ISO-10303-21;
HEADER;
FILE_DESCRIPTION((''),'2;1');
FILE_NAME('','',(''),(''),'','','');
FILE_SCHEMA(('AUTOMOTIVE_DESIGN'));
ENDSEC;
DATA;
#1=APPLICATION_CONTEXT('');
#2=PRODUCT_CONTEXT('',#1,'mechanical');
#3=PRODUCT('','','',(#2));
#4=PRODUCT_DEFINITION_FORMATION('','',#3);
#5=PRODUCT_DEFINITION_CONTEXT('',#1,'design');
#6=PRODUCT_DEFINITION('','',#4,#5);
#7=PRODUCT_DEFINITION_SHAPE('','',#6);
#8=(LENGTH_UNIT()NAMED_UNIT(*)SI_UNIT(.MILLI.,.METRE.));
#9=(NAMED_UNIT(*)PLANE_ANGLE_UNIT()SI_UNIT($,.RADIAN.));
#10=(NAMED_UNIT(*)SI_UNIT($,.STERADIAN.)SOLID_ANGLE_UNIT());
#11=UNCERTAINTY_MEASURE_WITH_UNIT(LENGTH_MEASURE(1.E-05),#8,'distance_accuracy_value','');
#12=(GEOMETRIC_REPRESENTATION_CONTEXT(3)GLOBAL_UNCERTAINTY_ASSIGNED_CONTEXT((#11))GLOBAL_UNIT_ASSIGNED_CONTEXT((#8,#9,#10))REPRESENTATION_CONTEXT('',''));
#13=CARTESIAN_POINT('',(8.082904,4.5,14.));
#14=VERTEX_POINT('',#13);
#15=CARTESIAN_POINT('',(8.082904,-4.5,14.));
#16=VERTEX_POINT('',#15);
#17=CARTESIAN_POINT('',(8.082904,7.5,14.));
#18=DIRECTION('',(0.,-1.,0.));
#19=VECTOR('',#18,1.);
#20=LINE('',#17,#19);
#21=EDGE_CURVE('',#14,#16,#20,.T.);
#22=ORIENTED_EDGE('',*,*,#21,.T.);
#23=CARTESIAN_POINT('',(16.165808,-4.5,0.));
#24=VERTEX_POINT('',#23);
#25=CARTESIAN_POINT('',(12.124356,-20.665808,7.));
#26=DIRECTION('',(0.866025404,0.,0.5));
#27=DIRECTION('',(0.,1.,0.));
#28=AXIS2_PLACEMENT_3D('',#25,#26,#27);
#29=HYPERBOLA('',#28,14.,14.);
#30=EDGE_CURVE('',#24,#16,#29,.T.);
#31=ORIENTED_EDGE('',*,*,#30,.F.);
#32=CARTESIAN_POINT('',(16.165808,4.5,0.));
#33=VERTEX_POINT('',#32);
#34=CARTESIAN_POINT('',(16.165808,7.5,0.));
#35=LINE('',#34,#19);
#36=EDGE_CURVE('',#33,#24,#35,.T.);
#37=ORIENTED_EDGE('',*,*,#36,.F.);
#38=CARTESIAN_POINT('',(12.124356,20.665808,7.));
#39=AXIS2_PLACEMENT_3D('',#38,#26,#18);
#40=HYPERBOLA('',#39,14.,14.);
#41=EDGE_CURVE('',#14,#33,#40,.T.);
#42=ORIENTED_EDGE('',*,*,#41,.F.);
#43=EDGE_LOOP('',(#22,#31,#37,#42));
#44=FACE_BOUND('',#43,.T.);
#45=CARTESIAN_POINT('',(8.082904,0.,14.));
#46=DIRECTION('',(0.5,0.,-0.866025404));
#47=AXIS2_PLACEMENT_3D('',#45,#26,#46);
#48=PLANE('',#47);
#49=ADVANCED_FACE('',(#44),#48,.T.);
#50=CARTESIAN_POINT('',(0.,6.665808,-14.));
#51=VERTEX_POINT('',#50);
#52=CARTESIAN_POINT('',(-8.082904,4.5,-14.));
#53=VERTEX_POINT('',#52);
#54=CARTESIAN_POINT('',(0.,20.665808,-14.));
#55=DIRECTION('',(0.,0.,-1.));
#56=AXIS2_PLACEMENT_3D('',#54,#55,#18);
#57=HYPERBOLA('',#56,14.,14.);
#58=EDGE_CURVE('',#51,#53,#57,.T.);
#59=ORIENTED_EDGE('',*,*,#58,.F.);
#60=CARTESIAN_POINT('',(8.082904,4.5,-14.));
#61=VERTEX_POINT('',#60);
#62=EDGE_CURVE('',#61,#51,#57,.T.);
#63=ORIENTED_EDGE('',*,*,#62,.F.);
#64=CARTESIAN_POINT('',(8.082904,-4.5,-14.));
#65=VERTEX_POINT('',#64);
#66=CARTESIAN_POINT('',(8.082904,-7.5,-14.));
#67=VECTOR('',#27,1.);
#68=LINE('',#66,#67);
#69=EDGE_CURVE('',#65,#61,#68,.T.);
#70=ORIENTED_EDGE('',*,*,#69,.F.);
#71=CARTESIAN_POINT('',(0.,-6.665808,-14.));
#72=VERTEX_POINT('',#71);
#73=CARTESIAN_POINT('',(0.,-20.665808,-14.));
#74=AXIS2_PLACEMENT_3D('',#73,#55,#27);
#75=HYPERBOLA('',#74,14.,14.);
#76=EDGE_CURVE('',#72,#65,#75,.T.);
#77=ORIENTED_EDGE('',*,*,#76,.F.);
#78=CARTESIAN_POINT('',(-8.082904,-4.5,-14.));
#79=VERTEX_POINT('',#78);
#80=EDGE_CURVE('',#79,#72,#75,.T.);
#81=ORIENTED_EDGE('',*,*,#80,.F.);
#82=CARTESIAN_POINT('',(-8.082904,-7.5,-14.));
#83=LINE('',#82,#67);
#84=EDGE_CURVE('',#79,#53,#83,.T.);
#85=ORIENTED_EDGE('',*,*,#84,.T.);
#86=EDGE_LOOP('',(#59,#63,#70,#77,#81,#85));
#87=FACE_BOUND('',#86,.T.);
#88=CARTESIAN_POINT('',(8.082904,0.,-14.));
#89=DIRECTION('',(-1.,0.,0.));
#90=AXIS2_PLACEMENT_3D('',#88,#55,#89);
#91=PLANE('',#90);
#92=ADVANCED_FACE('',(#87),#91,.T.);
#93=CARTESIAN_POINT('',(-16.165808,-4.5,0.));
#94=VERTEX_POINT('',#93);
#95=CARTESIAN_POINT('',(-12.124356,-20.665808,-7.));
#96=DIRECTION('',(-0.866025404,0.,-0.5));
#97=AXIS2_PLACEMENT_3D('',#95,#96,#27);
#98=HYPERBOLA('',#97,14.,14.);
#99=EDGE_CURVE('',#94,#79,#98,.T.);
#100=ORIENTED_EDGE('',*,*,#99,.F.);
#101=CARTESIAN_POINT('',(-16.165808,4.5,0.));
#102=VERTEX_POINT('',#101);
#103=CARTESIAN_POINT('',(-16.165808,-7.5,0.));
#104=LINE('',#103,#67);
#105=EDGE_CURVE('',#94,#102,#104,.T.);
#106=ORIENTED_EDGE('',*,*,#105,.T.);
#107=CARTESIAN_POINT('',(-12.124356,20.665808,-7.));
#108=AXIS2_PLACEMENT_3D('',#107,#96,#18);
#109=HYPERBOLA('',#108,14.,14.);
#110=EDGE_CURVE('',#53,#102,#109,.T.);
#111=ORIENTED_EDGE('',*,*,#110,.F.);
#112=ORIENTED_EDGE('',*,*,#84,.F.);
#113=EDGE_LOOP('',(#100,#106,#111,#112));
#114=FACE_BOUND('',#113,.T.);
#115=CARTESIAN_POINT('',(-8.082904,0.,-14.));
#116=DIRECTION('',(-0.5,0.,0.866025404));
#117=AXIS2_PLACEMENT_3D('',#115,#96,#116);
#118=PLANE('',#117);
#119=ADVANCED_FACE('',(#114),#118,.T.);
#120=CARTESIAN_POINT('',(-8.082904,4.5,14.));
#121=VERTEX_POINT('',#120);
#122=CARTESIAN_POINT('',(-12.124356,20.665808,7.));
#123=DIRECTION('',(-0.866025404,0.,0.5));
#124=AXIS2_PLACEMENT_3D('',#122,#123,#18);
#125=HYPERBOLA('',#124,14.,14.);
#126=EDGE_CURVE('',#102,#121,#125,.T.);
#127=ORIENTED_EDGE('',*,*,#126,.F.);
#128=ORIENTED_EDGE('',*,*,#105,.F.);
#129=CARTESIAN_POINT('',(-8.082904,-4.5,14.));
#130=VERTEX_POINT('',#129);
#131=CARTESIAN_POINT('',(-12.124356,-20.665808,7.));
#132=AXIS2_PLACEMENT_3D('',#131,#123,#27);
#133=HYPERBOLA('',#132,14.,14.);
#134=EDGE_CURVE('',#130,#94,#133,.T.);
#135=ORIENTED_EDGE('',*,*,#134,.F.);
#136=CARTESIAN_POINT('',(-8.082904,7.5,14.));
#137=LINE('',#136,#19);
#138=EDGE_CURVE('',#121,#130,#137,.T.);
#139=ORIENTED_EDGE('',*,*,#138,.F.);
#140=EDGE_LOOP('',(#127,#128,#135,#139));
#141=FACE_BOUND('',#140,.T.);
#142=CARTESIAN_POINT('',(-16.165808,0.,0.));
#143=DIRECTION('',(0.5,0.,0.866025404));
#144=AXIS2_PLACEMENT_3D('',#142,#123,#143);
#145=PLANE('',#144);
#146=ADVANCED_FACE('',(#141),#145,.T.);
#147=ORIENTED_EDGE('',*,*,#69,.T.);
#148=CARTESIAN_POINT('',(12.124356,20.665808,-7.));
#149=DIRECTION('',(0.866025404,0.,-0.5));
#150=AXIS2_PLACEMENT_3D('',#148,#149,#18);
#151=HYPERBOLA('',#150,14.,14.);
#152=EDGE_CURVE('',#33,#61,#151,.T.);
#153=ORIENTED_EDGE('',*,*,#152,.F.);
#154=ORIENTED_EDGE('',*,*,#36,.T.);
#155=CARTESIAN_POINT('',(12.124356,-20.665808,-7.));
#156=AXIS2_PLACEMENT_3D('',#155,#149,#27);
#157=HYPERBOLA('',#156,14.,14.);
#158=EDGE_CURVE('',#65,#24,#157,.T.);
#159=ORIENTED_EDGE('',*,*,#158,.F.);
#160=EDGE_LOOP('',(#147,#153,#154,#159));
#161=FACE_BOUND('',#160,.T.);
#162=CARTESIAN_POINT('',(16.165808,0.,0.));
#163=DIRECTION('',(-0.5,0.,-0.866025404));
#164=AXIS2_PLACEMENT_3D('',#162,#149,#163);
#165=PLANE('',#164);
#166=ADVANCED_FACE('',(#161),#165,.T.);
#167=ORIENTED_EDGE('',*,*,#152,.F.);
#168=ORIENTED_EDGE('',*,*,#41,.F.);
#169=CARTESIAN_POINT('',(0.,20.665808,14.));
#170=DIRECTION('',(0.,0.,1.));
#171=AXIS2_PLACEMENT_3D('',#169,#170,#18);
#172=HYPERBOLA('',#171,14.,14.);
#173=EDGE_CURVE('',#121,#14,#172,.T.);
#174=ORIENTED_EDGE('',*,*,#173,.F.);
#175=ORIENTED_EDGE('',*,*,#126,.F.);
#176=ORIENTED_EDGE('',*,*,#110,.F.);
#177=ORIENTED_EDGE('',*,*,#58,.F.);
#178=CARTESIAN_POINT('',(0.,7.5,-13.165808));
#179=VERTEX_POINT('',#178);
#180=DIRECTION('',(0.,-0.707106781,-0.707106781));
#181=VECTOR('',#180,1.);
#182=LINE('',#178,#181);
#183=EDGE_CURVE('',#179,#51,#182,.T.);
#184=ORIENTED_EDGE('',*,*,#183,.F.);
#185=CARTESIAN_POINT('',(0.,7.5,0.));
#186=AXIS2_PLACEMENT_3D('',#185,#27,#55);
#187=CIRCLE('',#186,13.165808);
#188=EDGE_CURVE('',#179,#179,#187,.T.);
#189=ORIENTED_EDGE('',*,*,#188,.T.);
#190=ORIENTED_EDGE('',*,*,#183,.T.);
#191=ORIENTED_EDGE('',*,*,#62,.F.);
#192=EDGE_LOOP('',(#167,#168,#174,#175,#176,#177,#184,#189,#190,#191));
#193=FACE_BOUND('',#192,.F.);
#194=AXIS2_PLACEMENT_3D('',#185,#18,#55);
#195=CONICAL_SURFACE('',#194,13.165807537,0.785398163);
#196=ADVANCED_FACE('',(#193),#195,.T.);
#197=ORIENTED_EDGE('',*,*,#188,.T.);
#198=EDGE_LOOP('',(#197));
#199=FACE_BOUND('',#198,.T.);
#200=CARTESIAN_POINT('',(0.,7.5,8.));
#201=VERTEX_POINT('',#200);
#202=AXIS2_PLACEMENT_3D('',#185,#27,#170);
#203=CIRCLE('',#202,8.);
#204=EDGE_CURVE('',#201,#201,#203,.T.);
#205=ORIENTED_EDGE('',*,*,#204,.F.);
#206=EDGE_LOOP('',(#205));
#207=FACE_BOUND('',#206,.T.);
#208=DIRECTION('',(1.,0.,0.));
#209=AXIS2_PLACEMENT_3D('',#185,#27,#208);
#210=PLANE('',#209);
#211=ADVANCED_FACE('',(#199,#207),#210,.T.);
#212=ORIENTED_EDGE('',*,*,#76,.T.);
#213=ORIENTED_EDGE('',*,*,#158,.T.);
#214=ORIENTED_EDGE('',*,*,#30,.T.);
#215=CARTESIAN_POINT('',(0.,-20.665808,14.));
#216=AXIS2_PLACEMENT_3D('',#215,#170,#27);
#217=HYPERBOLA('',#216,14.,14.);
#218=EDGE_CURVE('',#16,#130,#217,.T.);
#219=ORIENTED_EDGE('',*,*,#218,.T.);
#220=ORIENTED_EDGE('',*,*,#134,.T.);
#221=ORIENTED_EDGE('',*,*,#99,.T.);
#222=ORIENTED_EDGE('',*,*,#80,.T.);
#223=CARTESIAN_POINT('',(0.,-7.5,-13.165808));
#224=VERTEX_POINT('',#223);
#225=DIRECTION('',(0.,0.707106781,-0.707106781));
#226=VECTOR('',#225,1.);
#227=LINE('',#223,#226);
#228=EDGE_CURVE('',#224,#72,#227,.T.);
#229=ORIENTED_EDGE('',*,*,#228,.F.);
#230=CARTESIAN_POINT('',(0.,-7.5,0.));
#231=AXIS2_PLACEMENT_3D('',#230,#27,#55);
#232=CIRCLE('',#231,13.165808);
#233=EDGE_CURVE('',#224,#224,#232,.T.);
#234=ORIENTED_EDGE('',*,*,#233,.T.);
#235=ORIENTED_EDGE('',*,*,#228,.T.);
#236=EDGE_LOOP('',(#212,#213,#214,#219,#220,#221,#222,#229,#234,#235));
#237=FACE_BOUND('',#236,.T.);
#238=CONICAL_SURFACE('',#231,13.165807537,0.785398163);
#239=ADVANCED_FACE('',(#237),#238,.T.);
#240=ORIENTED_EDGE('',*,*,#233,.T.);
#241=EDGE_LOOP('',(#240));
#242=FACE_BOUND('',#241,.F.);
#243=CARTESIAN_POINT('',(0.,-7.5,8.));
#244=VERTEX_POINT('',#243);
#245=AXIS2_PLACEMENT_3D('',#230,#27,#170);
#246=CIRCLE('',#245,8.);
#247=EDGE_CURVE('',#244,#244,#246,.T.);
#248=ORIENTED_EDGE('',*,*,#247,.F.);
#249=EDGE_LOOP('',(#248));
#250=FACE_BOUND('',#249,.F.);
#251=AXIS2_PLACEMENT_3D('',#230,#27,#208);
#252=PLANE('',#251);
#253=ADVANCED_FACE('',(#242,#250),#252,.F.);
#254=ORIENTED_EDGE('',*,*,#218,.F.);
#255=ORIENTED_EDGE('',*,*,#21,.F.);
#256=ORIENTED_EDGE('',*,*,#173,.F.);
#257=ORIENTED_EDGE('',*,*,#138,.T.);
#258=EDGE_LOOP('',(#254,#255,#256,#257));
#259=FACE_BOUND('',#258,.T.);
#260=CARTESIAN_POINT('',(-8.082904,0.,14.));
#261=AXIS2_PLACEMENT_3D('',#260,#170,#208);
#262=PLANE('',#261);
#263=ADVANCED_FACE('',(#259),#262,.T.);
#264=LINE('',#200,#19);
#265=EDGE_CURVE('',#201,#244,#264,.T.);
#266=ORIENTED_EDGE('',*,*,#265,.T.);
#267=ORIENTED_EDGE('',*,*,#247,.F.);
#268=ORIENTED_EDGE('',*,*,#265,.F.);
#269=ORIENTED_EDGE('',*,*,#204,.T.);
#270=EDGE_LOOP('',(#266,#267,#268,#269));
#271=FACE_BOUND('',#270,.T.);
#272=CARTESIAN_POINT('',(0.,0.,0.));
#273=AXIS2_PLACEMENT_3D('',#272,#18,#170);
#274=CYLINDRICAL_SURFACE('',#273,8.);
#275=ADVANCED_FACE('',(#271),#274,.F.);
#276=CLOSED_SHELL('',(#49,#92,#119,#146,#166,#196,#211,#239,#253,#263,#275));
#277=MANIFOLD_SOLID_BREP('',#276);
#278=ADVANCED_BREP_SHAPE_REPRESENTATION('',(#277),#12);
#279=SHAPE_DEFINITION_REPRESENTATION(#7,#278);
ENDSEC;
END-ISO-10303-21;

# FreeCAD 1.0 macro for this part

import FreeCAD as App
import Part
import Sketcher
Q = App.Units.Quantity

doc = App.newDocument("Part")
body = doc.addObject("PartDesign::Body", "Body")

sketch1 = body.newObject("Sketcher::SketchObject", "Sketch")
sketch1.AttachmentSupport = (doc.getObject("XZ_Plane"), [""])
sketch1.MapMode = "FlatFace"
sketch1.addGeometry([
    Part.LineSegment(App.Vector(16, 0, 0), App.Vector(8, -14, 0)),
    Part.LineSegment(App.Vector(8, -14, 0), App.Vector(-8, -14, 0)),
    Part.LineSegment(App.Vector(-8, -14, 0), App.Vector(-16, 0, 0)),
    Part.LineSegment(App.Vector(-16, 0, 0), App.Vector(-8, 14, 0)),
    Part.LineSegment(App.Vector(-8, 14, 0), App.Vector(8, 14, 0)),
    Part.LineSegment(App.Vector(8, 14, 0), App.Vector(16, 0, 0)),
    Part.Circle(App.Vector(0, 0, 0), App.Vector(0, 0, 1), 8),
], False)
sketch1.addConstraint([
    Sketcher.Constraint("Coincident", 0, 2, 1, 1),
    Sketcher.Constraint("Coincident", 1, 2, 2, 1),
    Sketcher.Constraint("Coincident", 2, 2, 3, 1),
    Sketcher.Constraint("Coincident", 3, 2, 4, 1),
    Sketcher.Constraint("Coincident", 4, 2, 5, 1),
    Sketcher.Constraint("Coincident", 5, 2, 0, 1),
    Sketcher.Constraint("Horizontal", 1),
    Sketcher.Constraint("Horizontal", 4),
    Sketcher.Constraint("Coincident", 6, 3, -1, 1),
    Sketcher.Constraint("Symmetric", 0, 2, 3, 2, -1, 1),
    Sketcher.Constraint("Symmetric", 2, 2, 5, 2, -1, 1),
    Sketcher.Constraint("PointOnObject", 2, 2, -1),
    Sketcher.Constraint("Parallel", 2, 5),
    Sketcher.Constraint("Vertical", 1, 2, 3, 2),
    Sketcher.Constraint("Diameter", 6, Q("16 mm")),
    Sketcher.Constraint("Angle", 0, Q("-120 deg")),
    Sketcher.Constraint("DistanceY", 0, 2, -1, 1, Q("14 mm")),
    Sketcher.Constraint("DistanceX", 1, 2, 1, 1, Q("16.165808 mm")),
])
pad1 = body.newObject("PartDesign::Pad", "Pad")
pad1.Profile = sketch1
pad1.Length = 15
pad1.Midplane = True

sketch2 = body.newObject("Sketcher::SketchObject", "Sketch001")
sketch2.AttachmentSupport = (doc.getObject("XY_Plane"), [""])
sketch2.MapMode = "FlatFace"
sketch2.addGeometry([
    Part.LineSegment(App.Vector(13.2, 7.5, 0), App.Vector(16.2, 4.5, 0)),
    Part.LineSegment(App.Vector(16.2, 4.5, 0), App.Vector(16.2, 7.5, 0)),
    Part.LineSegment(App.Vector(16.2, 7.5, 0), App.Vector(13.2, 7.5, 0)),
], False)
sketch2.addConstraint([
    Sketcher.Constraint("Coincident", 0, 2, 1, 1),
    Sketcher.Constraint("Coincident", 1, 2, 2, 1),
    Sketcher.Constraint("Coincident", 2, 2, 0, 1),
    Sketcher.Constraint("Vertical", 1),
    Sketcher.Constraint("Horizontal", 2),
    Sketcher.Constraint("Equal", 2, 1),
    Sketcher.Constraint("DistanceX", 2, 2, 2, 1, Q("3 mm")),
    Sketcher.Constraint("DistanceY", -1, 1, 0, 2, Q("4.5 mm")),
    Sketcher.Constraint("DistanceX", -1, 1, 0, 2, Q("16.165808 mm")),
])
groove = body.newObject("PartDesign::Groove", "Groove")
groove.Profile = sketch2
groove.ReferenceAxis = (sketch2, ["V_Axis"])
groove.Angle = 360
doc.recompute()

mirrored = body.newObject("PartDesign::Mirrored", "Mirrored")
mirrored.Originals = [groove]
mirrored.MirrorPlane = (doc.getObject("XZ_Plane"), [""])
body.Tip = mirrored

doc.recompute()
